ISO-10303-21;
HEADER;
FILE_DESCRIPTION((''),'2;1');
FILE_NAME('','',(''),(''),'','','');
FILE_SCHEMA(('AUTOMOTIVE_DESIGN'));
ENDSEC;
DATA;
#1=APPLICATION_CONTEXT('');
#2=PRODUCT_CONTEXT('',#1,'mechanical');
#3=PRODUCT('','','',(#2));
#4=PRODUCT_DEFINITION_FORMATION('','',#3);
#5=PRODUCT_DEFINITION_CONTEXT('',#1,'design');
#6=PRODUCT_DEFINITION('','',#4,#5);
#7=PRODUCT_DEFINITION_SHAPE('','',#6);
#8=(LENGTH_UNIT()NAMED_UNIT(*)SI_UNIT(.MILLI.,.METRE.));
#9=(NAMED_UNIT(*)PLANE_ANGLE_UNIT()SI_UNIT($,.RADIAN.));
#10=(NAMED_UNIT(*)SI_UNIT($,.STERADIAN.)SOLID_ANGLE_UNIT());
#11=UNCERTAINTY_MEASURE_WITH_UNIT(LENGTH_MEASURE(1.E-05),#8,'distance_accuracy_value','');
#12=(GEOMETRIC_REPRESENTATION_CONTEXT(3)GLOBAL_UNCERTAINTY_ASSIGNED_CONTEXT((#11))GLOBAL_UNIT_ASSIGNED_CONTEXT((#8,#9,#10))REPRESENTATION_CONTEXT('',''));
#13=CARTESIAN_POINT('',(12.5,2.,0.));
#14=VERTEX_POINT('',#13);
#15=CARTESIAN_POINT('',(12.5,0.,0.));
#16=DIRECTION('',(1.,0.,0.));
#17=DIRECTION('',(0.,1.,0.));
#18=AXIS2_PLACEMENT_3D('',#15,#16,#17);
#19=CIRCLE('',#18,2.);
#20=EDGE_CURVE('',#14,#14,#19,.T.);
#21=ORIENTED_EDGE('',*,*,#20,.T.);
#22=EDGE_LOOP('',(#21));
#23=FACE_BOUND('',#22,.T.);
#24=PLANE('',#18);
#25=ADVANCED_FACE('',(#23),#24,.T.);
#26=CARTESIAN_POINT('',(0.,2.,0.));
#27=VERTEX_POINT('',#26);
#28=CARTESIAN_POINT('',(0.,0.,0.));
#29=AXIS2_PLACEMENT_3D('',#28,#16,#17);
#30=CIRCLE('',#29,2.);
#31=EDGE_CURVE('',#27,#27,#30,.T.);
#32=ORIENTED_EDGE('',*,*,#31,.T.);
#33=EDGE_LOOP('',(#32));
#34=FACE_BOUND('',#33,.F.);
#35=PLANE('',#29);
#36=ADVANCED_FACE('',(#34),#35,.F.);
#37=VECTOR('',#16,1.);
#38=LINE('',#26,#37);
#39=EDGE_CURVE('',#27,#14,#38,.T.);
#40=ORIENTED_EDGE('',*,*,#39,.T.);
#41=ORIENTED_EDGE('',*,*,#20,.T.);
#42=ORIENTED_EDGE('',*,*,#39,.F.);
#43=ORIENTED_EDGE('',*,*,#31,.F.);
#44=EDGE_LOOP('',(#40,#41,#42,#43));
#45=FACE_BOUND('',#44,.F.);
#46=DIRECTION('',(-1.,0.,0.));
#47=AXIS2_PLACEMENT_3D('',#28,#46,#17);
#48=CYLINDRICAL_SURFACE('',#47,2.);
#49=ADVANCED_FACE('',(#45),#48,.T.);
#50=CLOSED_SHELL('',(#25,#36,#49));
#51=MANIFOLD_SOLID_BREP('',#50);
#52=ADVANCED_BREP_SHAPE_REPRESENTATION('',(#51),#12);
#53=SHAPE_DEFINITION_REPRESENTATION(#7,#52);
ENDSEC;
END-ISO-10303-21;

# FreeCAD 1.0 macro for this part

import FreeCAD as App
import Part
import Sketcher

V = App.Vector

doc = App.newDocument("Part")
body = doc.addObject("PartDesign::Body", "Body")

# Sketch on YZ plane
sketch1 = body.newObject("Sketcher::SketchObject", "Sketch")
sketch1.AttachmentSupport = (doc.getObject("YZ_Plane"), [""])
sketch1.MapMode = "FlatFace"
sketch1.addGeometry(Part.Circle(V(0, 0, 0), V(0, 0, 1), 2), False)
sketch1.addConstraint(Sketcher.Constraint("Coincident", 0, 3, -1, 1))
sketch1.addConstraint(Sketcher.Constraint("Diameter", 0, 4.0))
pad1 = body.newObject("PartDesign::Pad", "Pad")
pad1.Profile = sketch1
pad1.Length = 12.5

doc.recompute()
